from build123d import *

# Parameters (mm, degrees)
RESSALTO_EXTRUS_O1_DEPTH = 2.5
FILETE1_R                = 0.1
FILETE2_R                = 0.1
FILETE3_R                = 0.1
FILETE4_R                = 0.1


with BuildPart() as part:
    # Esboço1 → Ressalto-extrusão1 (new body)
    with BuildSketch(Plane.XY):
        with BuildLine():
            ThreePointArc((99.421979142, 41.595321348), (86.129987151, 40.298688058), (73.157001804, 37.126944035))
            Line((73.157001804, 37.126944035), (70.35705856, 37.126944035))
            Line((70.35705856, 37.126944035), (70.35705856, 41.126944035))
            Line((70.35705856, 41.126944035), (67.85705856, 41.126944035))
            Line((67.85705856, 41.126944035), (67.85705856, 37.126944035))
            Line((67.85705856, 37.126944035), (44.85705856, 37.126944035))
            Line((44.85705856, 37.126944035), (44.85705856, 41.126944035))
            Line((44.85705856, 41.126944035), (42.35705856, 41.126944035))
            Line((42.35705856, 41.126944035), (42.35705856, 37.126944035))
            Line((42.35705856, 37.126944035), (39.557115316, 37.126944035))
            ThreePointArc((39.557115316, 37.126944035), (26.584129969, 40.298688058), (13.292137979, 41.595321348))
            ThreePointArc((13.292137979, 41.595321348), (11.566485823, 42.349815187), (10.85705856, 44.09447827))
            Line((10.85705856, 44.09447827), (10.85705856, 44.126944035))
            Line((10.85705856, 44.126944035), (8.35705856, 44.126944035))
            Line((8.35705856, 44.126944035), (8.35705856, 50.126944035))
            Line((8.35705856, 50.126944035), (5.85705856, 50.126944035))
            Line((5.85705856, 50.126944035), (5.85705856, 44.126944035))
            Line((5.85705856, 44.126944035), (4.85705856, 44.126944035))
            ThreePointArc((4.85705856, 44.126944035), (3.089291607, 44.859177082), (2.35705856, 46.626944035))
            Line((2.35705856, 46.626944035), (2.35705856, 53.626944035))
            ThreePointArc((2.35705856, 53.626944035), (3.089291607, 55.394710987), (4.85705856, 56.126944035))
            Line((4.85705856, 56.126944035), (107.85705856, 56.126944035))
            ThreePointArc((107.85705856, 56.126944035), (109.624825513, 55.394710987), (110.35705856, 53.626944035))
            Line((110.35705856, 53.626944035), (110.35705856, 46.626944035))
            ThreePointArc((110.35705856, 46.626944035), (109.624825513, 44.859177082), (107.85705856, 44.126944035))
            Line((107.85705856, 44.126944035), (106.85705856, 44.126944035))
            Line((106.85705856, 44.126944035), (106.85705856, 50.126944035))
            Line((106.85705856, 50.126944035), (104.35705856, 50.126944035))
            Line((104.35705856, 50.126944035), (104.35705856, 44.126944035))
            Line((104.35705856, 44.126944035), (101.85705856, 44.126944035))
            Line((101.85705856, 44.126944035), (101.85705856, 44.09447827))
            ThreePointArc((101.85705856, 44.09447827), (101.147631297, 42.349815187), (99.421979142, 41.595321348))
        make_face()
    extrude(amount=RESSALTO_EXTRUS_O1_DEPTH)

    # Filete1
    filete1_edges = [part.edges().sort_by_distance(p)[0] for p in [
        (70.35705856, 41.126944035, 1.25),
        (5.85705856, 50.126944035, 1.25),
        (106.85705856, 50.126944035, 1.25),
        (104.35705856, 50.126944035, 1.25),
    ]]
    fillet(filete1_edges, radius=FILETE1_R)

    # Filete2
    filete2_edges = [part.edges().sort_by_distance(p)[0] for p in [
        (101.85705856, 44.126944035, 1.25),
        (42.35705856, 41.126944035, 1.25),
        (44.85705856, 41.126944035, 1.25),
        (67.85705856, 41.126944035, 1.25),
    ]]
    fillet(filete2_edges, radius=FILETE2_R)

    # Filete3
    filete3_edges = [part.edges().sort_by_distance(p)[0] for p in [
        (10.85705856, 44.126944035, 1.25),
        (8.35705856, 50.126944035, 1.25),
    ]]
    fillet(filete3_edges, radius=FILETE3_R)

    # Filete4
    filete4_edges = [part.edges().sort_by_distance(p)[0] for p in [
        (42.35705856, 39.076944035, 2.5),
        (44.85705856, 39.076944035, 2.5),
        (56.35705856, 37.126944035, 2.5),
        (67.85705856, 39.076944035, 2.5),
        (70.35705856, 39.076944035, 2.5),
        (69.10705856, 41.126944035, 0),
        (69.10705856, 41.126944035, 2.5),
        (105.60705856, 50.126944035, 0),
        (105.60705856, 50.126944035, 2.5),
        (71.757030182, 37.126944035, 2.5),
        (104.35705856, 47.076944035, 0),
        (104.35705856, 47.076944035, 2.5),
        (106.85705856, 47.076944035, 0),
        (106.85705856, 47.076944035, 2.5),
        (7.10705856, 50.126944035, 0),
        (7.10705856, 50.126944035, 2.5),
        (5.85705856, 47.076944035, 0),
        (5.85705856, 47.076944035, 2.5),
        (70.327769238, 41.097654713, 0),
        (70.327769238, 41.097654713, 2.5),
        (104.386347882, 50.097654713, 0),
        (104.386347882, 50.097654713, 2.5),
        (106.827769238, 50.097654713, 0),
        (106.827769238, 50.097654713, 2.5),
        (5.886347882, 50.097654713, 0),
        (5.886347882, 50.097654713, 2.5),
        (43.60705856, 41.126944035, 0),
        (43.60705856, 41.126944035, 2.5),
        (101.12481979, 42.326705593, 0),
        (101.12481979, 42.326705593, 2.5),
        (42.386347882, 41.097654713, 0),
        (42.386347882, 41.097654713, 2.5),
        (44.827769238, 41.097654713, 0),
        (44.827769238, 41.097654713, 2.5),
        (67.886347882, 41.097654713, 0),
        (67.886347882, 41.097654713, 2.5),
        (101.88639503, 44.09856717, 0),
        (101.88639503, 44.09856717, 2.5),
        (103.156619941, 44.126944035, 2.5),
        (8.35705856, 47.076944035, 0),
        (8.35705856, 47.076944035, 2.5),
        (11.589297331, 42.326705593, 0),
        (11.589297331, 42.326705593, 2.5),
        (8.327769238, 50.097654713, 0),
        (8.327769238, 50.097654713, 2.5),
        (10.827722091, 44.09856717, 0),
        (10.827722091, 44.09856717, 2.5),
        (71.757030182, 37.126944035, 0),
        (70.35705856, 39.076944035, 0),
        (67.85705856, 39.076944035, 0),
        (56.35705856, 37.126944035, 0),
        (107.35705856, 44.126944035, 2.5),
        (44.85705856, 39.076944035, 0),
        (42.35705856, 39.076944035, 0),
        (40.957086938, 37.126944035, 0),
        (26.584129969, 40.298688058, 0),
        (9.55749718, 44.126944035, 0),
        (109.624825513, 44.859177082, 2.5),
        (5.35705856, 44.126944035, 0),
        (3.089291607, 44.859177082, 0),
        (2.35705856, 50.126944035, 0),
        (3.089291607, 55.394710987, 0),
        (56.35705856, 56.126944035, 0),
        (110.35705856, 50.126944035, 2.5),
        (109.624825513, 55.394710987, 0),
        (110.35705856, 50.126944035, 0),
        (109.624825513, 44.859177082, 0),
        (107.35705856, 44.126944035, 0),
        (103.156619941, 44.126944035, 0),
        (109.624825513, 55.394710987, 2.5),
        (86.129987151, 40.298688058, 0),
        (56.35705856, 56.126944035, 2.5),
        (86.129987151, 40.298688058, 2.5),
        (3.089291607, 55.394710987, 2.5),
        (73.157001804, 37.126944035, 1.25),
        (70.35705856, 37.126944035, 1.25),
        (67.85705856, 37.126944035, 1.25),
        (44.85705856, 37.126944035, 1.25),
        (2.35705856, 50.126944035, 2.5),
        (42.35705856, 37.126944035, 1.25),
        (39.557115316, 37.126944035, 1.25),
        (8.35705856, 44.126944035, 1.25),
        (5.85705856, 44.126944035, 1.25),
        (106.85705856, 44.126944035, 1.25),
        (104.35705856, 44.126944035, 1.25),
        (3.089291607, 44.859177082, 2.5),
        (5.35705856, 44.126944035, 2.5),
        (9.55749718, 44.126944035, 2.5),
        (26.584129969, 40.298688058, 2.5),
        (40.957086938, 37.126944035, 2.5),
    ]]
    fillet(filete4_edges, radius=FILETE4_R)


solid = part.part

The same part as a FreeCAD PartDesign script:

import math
import FreeCAD as App
import Part
import Sketcher
from FreeCAD import Vector
Q = App.Units.Quantity


def edges_at(feature, points):
    """Names of the edges that pass closest to the given points."""
    edges = feature.Shape.Edges
    near = lambda p: min(range(len(edges)), key=lambda i: edges[i].distToShape(Part.Vertex(*p))[0])
    return sorted({f"Edge{near(p) + 1}" for p in points})

doc = App.newDocument("Part")
body = doc.addObject("PartDesign::Body", "Body")

# Sketch on XY plane
sketch1 = body.newObject("Sketcher::SketchObject", "Sketch")
sketch1.AttachmentSupport = (doc.getObject("XY_Plane"), [""])
sketch1.MapMode = "FlatFace"
sketch1.addGeometry([
    Part.ArcOfCircle(Part.Circle(Vector(101.857, -52.145, 0), Vector(0, 0, 1), 93.771), math.radians(91.49), math.radians(107.82)),  # 0
    Part.ArcOfCircle(Part.Circle(Vector(99.357, 44.094, 0), Vector(0, 0, 1), 2.5), math.radians(-89), math.radians(0)),  # 1
    Part.LineSegment(Vector(101.857, 44.094, 0), Vector(101.857, 44.127, 0)),  # 2
    Part.LineSegment(Vector(101.857, 44.127, 0), Vector(104.357, 44.127, 0)),  # 3
    Part.LineSegment(Vector(104.357, 44.127, 0), Vector(104.357, 50.127, 0)),  # 4
    Part.LineSegment(Vector(104.357, 50.127, 0), Vector(106.857, 50.127, 0)),  # 5
    Part.LineSegment(Vector(106.857, 50.127, 0), Vector(106.857, 44.127, 0)),  # 6
    Part.LineSegment(Vector(106.857, 44.127, 0), Vector(107.857, 44.127, 0)),  # 7
    Part.ArcOfCircle(Part.Circle(Vector(107.857, 46.627, 0), Vector(0, 0, 1), 2.5), math.radians(-90), math.radians(0)),  # 8
    Part.LineSegment(Vector(110.357, 46.627, 0), Vector(110.357, 53.627, 0)),  # 9
    Part.ArcOfCircle(Part.Circle(Vector(107.857, 53.627, 0), Vector(0, 0, 1), 2.5), math.radians(0), math.radians(90)),  # 10
    Part.LineSegment(Vector(107.857, 56.127, 0), Vector(4.857, 56.127, 0)),  # 11
    Part.ArcOfCircle(Part.Circle(Vector(4.857, 53.627, 0), Vector(0, 0, 1), 2.5), math.radians(90), math.radians(180)),  # 12
    Part.LineSegment(Vector(2.357, 53.627, 0), Vector(2.357, 46.627, 0)),  # 13
    Part.ArcOfCircle(Part.Circle(Vector(4.857, 46.627, 0), Vector(0, 0, 1), 2.5), math.radians(180), math.radians(270)),  # 14
    Part.LineSegment(Vector(4.857, 44.127, 0), Vector(5.857, 44.127, 0)),  # 15
    Part.LineSegment(Vector(5.857, 44.127, 0), Vector(5.857, 50.127, 0)),  # 16
    Part.LineSegment(Vector(5.857, 50.127, 0), Vector(8.357, 50.127, 0)),  # 17
    Part.LineSegment(Vector(8.357, 50.127, 0), Vector(8.357, 44.127, 0)),  # 18
    Part.LineSegment(Vector(8.357, 44.127, 0), Vector(10.857, 44.127, 0)),  # 19
    Part.LineSegment(Vector(10.857, 44.127, 0), Vector(10.857, 44.094, 0)),  # 20
    Part.ArcOfCircle(Part.Circle(Vector(13.357, 44.094, 0), Vector(0, 0, 1), 2.5), math.radians(-180), math.radians(-91)),  # 21
    Part.ArcOfCircle(Part.Circle(Vector(10.857, -52.145, 0), Vector(0, 0, 1), 93.771), math.radians(72.18), math.radians(88.51)),  # 22
    Part.LineSegment(Vector(39.557, 37.127, 0), Vector(42.357, 37.127, 0)),  # 23
    Part.LineSegment(Vector(42.357, 37.127, 0), Vector(42.357, 41.127, 0)),  # 24
    Part.LineSegment(Vector(42.357, 41.127, 0), Vector(44.857, 41.127, 0)),  # 25
    Part.LineSegment(Vector(44.857, 41.127, 0), Vector(44.857, 37.127, 0)),  # 26
    Part.LineSegment(Vector(44.857, 37.127, 0), Vector(67.857, 37.127, 0)),  # 27
    Part.LineSegment(Vector(67.857, 37.127, 0), Vector(67.857, 41.127, 0)),  # 28
    Part.LineSegment(Vector(67.857, 41.127, 0), Vector(70.357, 41.127, 0)),  # 29
    Part.LineSegment(Vector(70.357, 41.127, 0), Vector(70.357, 37.127, 0)),  # 30
    Part.LineSegment(Vector(70.357, 37.127, 0), Vector(73.157, 37.127, 0)),  # 31
], False)
sketch1.addConstraint([
    Sketcher.Constraint("Tangent", 0, 1, 1, 1),
    Sketcher.Constraint("Tangent", 1, 2, 2, 1),
    Sketcher.Constraint("Coincident", 2, 2, 3, 1),
    Sketcher.Constraint("Coincident", 3, 2, 4, 1),
    Sketcher.Constraint("Coincident", 4, 2, 5, 1),
    Sketcher.Constraint("Coincident", 5, 2, 6, 1),
    Sketcher.Constraint("Coincident", 6, 2, 7, 1),
    Sketcher.Constraint("Tangent", 7, 2, 8, 1),
    Sketcher.Constraint("Tangent", 8, 2, 9, 1),
    Sketcher.Constraint("Tangent", 9, 2, 10, 1),
    Sketcher.Constraint("Tangent", 10, 2, 11, 1),
    Sketcher.Constraint("Tangent", 11, 2, 12, 1),
    Sketcher.Constraint("Tangent", 12, 2, 13, 1),
    Sketcher.Constraint("Tangent", 13, 2, 14, 1),
    Sketcher.Constraint("Tangent", 14, 2, 15, 1),
    Sketcher.Constraint("Coincident", 15, 2, 16, 1),
    Sketcher.Constraint("Coincident", 16, 2, 17, 1),
    Sketcher.Constraint("Coincident", 17, 2, 18, 1),
    Sketcher.Constraint("Coincident", 18, 2, 19, 1),
    Sketcher.Constraint("Coincident", 19, 2, 20, 1),
    Sketcher.Constraint("Tangent", 20, 2, 21, 1),
    Sketcher.Constraint("Tangent", 21, 2, 22, 2),
    Sketcher.Constraint("Coincident", 22, 1, 23, 1),
    Sketcher.Constraint("Coincident", 23, 2, 24, 1),
    Sketcher.Constraint("Coincident", 24, 2, 25, 1),
    Sketcher.Constraint("Coincident", 25, 2, 26, 1),
    Sketcher.Constraint("Coincident", 26, 2, 27, 1),
    Sketcher.Constraint("Coincident", 27, 2, 28, 1),
    Sketcher.Constraint("Coincident", 28, 2, 29, 1),
    Sketcher.Constraint("Coincident", 29, 2, 30, 1),
    Sketcher.Constraint("Coincident", 30, 2, 31, 1),
    Sketcher.Constraint("Coincident", 31, 2, 0, 2),
    Sketcher.Constraint("Vertical", 2),
    Sketcher.Constraint("Horizontal", 3),
    Sketcher.Constraint("Vertical", 4),
    Sketcher.Constraint("Horizontal", 5),
    Sketcher.Constraint("Vertical", 6),
    Sketcher.Constraint("Horizontal", 7),
    Sketcher.Constraint("Vertical", 9),
    Sketcher.Constraint("Horizontal", 11),
    Sketcher.Constraint("Vertical", 13),
    Sketcher.Constraint("Horizontal", 15),
    Sketcher.Constraint("Vertical", 16),
    Sketcher.Constraint("Horizontal", 17),
    Sketcher.Constraint("Vertical", 18),
    Sketcher.Constraint("Horizontal", 19),
    Sketcher.Constraint("Vertical", 20),
    Sketcher.Constraint("Horizontal", 23),
    Sketcher.Constraint("Vertical", 24),
    Sketcher.Constraint("Horizontal", 25),
    Sketcher.Constraint("Vertical", 26),
    Sketcher.Constraint("Horizontal", 27),
    Sketcher.Constraint("Vertical", 28),
    Sketcher.Constraint("Horizontal", 29),
    Sketcher.Constraint("Vertical", 30),
    Sketcher.Constraint("Horizontal", 31),
    Sketcher.Constraint("Equal", 1, 8),
    Sketcher.Constraint("Equal", 8, 10),
    Sketcher.Constraint("Equal", 10, 12),
    Sketcher.Constraint("Equal", 12, 14),
    Sketcher.Constraint("Equal", 14, 21),
    Sketcher.Constraint("Equal", 0, 22),
    Sketcher.Constraint("Horizontal", 8, 3, 14, 3),
    Sketcher.Constraint("Horizontal", 1, 3, 21, 3),
    Sketcher.Constraint("Horizontal", 0, 3, 22, 3),
    Sketcher.Constraint("Horizontal", 3, 2, 6, 2),
    Sketcher.Constraint("Horizontal", 5, 2, 16, 2),
    Sketcher.Constraint("Horizontal", 15, 2, 18, 2),
    Sketcher.Constraint("Horizontal", 23, 2, 26, 2),
    Sketcher.Constraint("Horizontal", 25, 2, 28, 2),
    Sketcher.Constraint("Horizontal", 27, 2, 30, 2),
    Sketcher.Constraint("Vertical", 0, 3, 1, 2),
    Sketcher.Constraint("Equal", 3, 5),
    Sketcher.Constraint("Equal", 7, 15),
    Sketcher.Constraint("Equal", 5, 17),
    Sketcher.Constraint("Equal", 17, 19),
    Sketcher.Constraint("Equal", 19, 25),
    Sketcher.Constraint("Equal", 25, 29),
    Sketcher.Constraint("Equal", 23, 31),
    Sketcher.Constraint("Radius", 1, Q("2.5 mm")),
    Sketcher.Constraint("DistanceX", 7, 1, 7, 2, Q("1 mm")),
    Sketcher.Constraint("DistanceX", 11, 2, 11, 1, Q("103 mm")),
    Sketcher.Constraint("DistanceX", 27, 1, 27, 2, Q("23 mm")),
    Sketcher.Constraint("DistanceY", 4, 1, 4, 2, Q("6 mm")),
    Sketcher.Constraint("DistanceY", 9, 1, 9, 2, Q("7 mm")),
    Sketcher.Constraint("DistanceY", 24, 1, 24, 2, Q("4 mm")),
    Sketcher.Constraint("DistanceX", 3, 1, 3, 2, Q("2.5 mm")),
    Sketcher.Constraint("DistanceY", 22, 1, 19, 2, Q("7 mm")),
    Sketcher.Constraint("DistanceX", -1, 1, 31, 2, Q("73.157002 mm")),
    Sketcher.Constraint("Radius", 0, Q("93.771473 mm")),
    Sketcher.Constraint("DistanceX", 23, 1, 23, 2, Q("2.799943 mm")),
    Sketcher.Constraint("DistanceY", 0, 3, -1, 1, Q("52.144529 mm")),
])
pad1 = body.newObject("PartDesign::Pad", "Pad")
pad1.Profile = sketch1
pad1.Length = 2.5
doc.recompute()

fillet = body.newObject("PartDesign::Fillet", "Fillet")
fillet.Base = (pad1, edges_at(pad1, [
    (70.357, 41.127, 1.25),
    (5.857, 50.127, 1.25),
    (106.857, 50.127, 1.25),
    (104.357, 50.127, 1.25),
]))
fillet.Radius = 0.1
doc.recompute()

fillet2 = body.newObject("PartDesign::Fillet", "Fillet001")
fillet2.Base = (fillet, edges_at(fillet, [
    (101.857, 44.127, 1.25),
    (42.357, 41.127, 1.25),
    (44.857, 41.127, 1.25),
    (67.857, 41.127, 1.25),
]))
fillet2.Radius = 0.1
doc.recompute()

fillet3 = body.newObject("PartDesign::Fillet", "Fillet002")
fillet3.Base = (fillet2, edges_at(fillet2, [(10.857, 44.127, 1.25), (8.357, 50.127, 1.25)]))
fillet3.Radius = 0.1
doc.recompute()

fillet4 = body.newObject("PartDesign::Fillet", "Fillet003")
fillet4.Base = (fillet3, ["Edge1"])
fillet4.UseAllEdges = True
fillet4.Radius = 0.1

doc.recompute()
